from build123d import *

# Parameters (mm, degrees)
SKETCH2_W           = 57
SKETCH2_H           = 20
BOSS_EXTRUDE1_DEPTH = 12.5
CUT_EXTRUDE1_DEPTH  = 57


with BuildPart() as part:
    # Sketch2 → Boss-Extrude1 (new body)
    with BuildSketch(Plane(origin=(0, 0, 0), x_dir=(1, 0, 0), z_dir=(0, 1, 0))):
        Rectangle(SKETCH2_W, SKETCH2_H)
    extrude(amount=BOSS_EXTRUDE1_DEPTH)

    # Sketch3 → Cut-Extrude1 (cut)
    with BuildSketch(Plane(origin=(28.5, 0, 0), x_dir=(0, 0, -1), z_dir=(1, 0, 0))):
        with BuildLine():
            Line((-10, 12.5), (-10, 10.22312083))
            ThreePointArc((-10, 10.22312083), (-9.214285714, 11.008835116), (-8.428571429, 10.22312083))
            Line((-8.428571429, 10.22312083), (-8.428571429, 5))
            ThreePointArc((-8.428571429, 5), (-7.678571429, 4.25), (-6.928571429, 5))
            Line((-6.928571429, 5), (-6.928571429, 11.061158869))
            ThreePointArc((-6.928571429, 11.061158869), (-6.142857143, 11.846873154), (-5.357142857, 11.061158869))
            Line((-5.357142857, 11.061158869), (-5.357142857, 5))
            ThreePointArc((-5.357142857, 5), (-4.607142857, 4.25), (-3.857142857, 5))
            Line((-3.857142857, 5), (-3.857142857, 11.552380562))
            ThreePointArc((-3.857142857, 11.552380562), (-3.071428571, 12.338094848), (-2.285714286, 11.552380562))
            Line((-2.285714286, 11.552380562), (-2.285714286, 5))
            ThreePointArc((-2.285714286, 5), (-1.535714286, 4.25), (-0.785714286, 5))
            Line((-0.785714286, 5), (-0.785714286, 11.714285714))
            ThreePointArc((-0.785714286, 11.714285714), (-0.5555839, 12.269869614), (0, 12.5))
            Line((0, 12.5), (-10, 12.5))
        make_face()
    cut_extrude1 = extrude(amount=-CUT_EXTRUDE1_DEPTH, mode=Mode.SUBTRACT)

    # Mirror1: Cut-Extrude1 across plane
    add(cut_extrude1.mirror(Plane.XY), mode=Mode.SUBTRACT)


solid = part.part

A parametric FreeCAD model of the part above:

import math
import FreeCAD as App
import Part
import Sketcher
Q = App.Units.Quantity

doc = App.newDocument("Part")
params = doc.addObject("Spreadsheet::Sheet", "Params")
for row, (alias, value) in enumerate([
    ("sketch1_width", "57 mm"),
    ("sketch1_height", "20 mm"),
    ("pad1_length", "12.5 mm"),
    ("sketch2_height", "10 mm"),
    ("sketch2_radius", "0.75 mm"),
    ("pocket1_length", "57 mm"),
], start=1):
    params.set(f"A{row}", alias)
    params.set(f"B{row}", "=" + value)
    params.setAlias(f"B{row}", alias)

body = doc.addObject("PartDesign::Body", "Body")

# Sketch on XZ plane
sketch1 = body.newObject("Sketcher::SketchObject", "Sketch")
sketch1.AttachmentSupport = (doc.getObject("XZ_Plane"), [""])
sketch1.MapMode = "FlatFace"
sketch1.addGeometry(Part.LineSegment(App.Vector(-28.5, -10, 0), App.Vector(-28.5, 10, 0)), False)
sketch1.addGeometry(Part.LineSegment(App.Vector(-28.5, 10, 0), App.Vector(28.5, 10, 0)), False)
sketch1.addGeometry(Part.LineSegment(App.Vector(28.5, 10, 0), App.Vector(28.5, -10, 0)), False)
sketch1.addGeometry(Part.LineSegment(App.Vector(28.5, -10, 0), App.Vector(-28.5, -10, 0)), False)
sketch1.addConstraint(Sketcher.Constraint("Coincident", 0, 2, 1, 1))
sketch1.addConstraint(Sketcher.Constraint("Coincident", 1, 2, 2, 1))
sketch1.addConstraint(Sketcher.Constraint("Coincident", 2, 2, 3, 1))
sketch1.addConstraint(Sketcher.Constraint("Coincident", 3, 2, 0, 1))
sketch1.addConstraint(Sketcher.Constraint("Vertical", 0))
sketch1.addConstraint(Sketcher.Constraint("Horizontal", 1))
sketch1.addConstraint(Sketcher.Constraint("Vertical", 2))
sketch1.addConstraint(Sketcher.Constraint("Horizontal", 3))
sketch1.addConstraint(Sketcher.Constraint("Symmetric", 0, 2, 2, 2, -1, 1))
sketch1.addConstraint(Sketcher.Constraint("DistanceX", 1, 1, 1, 2, Q("57 mm")))
sketch1.addConstraint(Sketcher.Constraint("DistanceY", 0, 1, 0, 2, Q("20 mm")))
sketch1.setExpression("Constraints[9]", "Params.sketch1_width")
sketch1.setExpression("Constraints[10]", "Params.sketch1_height")
pad1 = body.newObject("PartDesign::Pad", "Pad")
pad1.Profile = sketch1
pad1.setExpression("Length", "Params.pad1_length")
pad1.Reversed = True

# Sketch on YZ plane
sketch2 = body.newObject("Sketcher::SketchObject", "Sketch001")
sketch2.AttachmentSupport = (doc.getObject("YZ_Plane"), [""])
sketch2.MapMode = "FlatFace"
sketch2.AttachmentOffset = App.Placement(App.Vector(0, 0, 28.5), App.Rotation())
sketch2.addGeometry(Part.LineSegment(App.Vector(12.5, 10, 0), App.Vector(10.223121, 10, 0)), False)
sketch2.addGeometry(Part.ArcOfCircle(Part.Circle(App.Vector(10.223121, 9.214286, 0), App.Vector(0, 0, 1), 0.785714), math.radians(-90), math.radians(90)), False)
sketch2.addGeometry(Part.LineSegment(App.Vector(10.223121, 8.428571, 0), App.Vector(5, 8.428571, 0)), False)
sketch2.addGeometry(Part.ArcOfCircle(Part.Circle(App.Vector(5, 7.678571, 0), App.Vector(0, 0, 1), 0.75), math.radians(90), math.radians(270)), False)
sketch2.addGeometry(Part.LineSegment(App.Vector(5, 6.928571, 0), App.Vector(11.061159, 6.928571, 0)), False)
sketch2.addGeometry(Part.ArcOfCircle(Part.Circle(App.Vector(11.061159, 6.142857, 0), App.Vector(0, 0, 1), 0.785714), math.radians(-90), math.radians(90)), False)
sketch2.addGeometry(Part.LineSegment(App.Vector(11.061159, 5.357143, 0), App.Vector(5, 5.357143, 0)), False)
sketch2.addGeometry(Part.ArcOfCircle(Part.Circle(App.Vector(5, 4.607143, 0), App.Vector(0, 0, 1), 0.75), math.radians(90), math.radians(270)), False)
sketch2.addGeometry(Part.LineSegment(App.Vector(5, 3.857143, 0), App.Vector(11.552381, 3.857143, 0)), False)
sketch2.addGeometry(Part.ArcOfCircle(Part.Circle(App.Vector(11.552381, 3.071429, 0), App.Vector(0, 0, 1), 0.785714), math.radians(-90), math.radians(90)), False)
sketch2.addGeometry(Part.LineSegment(App.Vector(11.552381, 2.285714, 0), App.Vector(5, 2.285714, 0)), False)
sketch2.addGeometry(Part.ArcOfCircle(Part.Circle(App.Vector(5, 1.535714, 0), App.Vector(0, 0, 1), 0.75), math.radians(90), math.radians(270)), False)
sketch2.addGeometry(Part.LineSegment(App.Vector(5, 0.785714, 0), App.Vector(11.714286, 0.785714, 0)), False)
sketch2.addGeometry(Part.ArcOfCircle(Part.Circle(App.Vector(11.714286, 0, 0), App.Vector(0, 0, 1), 0.785714), math.radians(0), math.radians(90)), False)
sketch2.addGeometry(Part.LineSegment(App.Vector(12.5, 0, 0), App.Vector(12.5, 10, 0)), False)
sketch2.addConstraint(Sketcher.Constraint("Tangent", 0, 2, 1, 2))
sketch2.addConstraint(Sketcher.Constraint("Tangent", 1, 1, 2, 1))
sketch2.addConstraint(Sketcher.Constraint("Tangent", 2, 2, 3, 1))
sketch2.addConstraint(Sketcher.Constraint("Tangent", 3, 2, 4, 1))
sketch2.addConstraint(Sketcher.Constraint("Tangent", 4, 2, 5, 2))
sketch2.addConstraint(Sketcher.Constraint("Tangent", 5, 1, 6, 1))
sketch2.addConstraint(Sketcher.Constraint("Tangent", 6, 2, 7, 1))
sketch2.addConstraint(Sketcher.Constraint("Tangent", 7, 2, 8, 1))
sketch2.addConstraint(Sketcher.Constraint("Tangent", 8, 2, 9, 2))
sketch2.addConstraint(Sketcher.Constraint("Tangent", 9, 1, 10, 1))
sketch2.addConstraint(Sketcher.Constraint("Tangent", 10, 2, 11, 1))
sketch2.addConstraint(Sketcher.Constraint("Tangent", 11, 2, 12, 1))
sketch2.addConstraint(Sketcher.Constraint("Tangent", 12, 2, 13, 2))
sketch2.addConstraint(Sketcher.Constraint("Tangent", 13, 1, 14, 1))
sketch2.addConstraint(Sketcher.Constraint("Coincident", 14, 2, 0, 1))
sketch2.addConstraint(Sketcher.Constraint("Horizontal", 0))
sketch2.addConstraint(Sketcher.Constraint("Horizontal", 2))
sketch2.addConstraint(Sketcher.Constraint("Horizontal", 4))
sketch2.addConstraint(Sketcher.Constraint("Horizontal", 6))
sketch2.addConstraint(Sketcher.Constraint("Horizontal", 8))
sketch2.addConstraint(Sketcher.Constraint("Horizontal", 10))
sketch2.addConstraint(Sketcher.Constraint("Horizontal", 12))
sketch2.addConstraint(Sketcher.Constraint("Vertical", 14))
sketch2.addConstraint(Sketcher.Constraint("Equal", 1, 5))
sketch2.addConstraint(Sketcher.Constraint("Equal", 3, 7))
sketch2.addConstraint(Sketcher.Constraint("Equal", 5, 9))
sketch2.addConstraint(Sketcher.Constraint("Equal", 7, 11))
sketch2.addConstraint(Sketcher.Constraint("Equal", 9, 13))
sketch2.addConstraint(Sketcher.Constraint("PointOnObject", 13, 3, -1))
sketch2.addConstraint(Sketcher.Constraint("Vertical", 3, 3, 7, 3))
sketch2.addConstraint(Sketcher.Constraint("Vertical", 7, 3, 11, 3))
sketch2.addConstraint(Sketcher.Constraint("DistanceY", 14, 1, 14, 2, Q("10 mm")))
sketch2.addConstraint(Sketcher.Constraint("Radius", 3, Q("0.75 mm")))
sketch2.addConstraint(Sketcher.Constraint("DistanceX", -1, 1, 3, 3, Q("5 mm")))
sketch2.addConstraint(Sketcher.Constraint("DistanceX", -1, 1, 13, 1, Q("12.5 mm")))
sketch2.addConstraint(Sketcher.Constraint("DistanceX", 0, 2, 0, 1, Q("2.276879 mm")))
sketch2.addConstraint(Sketcher.Constraint("DistanceX", 4, 1, 4, 2, Q("6.061159 mm")))
sketch2.addConstraint(Sketcher.Constraint("DistanceX", 8, 1, 8, 2, Q("6.552381 mm")))
sketch2.setExpression("Constraints[31]", "Params.sketch2_height")
sketch2.setExpression("Constraints[32]", "Params.sketch2_radius")
pocket1 = body.newObject("PartDesign::Pocket", "Pocket")
pocket1.Profile = sketch2
pocket1.setExpression("Length", "Params.pocket1_length")
doc.recompute()

mirrored = body.newObject("PartDesign::Mirrored", "Mirrored")
mirrored.Originals = [pocket1]
mirrored.MirrorPlane = (doc.getObject("XY_Plane"), [""])
body.Tip = mirrored

doc.recompute()
